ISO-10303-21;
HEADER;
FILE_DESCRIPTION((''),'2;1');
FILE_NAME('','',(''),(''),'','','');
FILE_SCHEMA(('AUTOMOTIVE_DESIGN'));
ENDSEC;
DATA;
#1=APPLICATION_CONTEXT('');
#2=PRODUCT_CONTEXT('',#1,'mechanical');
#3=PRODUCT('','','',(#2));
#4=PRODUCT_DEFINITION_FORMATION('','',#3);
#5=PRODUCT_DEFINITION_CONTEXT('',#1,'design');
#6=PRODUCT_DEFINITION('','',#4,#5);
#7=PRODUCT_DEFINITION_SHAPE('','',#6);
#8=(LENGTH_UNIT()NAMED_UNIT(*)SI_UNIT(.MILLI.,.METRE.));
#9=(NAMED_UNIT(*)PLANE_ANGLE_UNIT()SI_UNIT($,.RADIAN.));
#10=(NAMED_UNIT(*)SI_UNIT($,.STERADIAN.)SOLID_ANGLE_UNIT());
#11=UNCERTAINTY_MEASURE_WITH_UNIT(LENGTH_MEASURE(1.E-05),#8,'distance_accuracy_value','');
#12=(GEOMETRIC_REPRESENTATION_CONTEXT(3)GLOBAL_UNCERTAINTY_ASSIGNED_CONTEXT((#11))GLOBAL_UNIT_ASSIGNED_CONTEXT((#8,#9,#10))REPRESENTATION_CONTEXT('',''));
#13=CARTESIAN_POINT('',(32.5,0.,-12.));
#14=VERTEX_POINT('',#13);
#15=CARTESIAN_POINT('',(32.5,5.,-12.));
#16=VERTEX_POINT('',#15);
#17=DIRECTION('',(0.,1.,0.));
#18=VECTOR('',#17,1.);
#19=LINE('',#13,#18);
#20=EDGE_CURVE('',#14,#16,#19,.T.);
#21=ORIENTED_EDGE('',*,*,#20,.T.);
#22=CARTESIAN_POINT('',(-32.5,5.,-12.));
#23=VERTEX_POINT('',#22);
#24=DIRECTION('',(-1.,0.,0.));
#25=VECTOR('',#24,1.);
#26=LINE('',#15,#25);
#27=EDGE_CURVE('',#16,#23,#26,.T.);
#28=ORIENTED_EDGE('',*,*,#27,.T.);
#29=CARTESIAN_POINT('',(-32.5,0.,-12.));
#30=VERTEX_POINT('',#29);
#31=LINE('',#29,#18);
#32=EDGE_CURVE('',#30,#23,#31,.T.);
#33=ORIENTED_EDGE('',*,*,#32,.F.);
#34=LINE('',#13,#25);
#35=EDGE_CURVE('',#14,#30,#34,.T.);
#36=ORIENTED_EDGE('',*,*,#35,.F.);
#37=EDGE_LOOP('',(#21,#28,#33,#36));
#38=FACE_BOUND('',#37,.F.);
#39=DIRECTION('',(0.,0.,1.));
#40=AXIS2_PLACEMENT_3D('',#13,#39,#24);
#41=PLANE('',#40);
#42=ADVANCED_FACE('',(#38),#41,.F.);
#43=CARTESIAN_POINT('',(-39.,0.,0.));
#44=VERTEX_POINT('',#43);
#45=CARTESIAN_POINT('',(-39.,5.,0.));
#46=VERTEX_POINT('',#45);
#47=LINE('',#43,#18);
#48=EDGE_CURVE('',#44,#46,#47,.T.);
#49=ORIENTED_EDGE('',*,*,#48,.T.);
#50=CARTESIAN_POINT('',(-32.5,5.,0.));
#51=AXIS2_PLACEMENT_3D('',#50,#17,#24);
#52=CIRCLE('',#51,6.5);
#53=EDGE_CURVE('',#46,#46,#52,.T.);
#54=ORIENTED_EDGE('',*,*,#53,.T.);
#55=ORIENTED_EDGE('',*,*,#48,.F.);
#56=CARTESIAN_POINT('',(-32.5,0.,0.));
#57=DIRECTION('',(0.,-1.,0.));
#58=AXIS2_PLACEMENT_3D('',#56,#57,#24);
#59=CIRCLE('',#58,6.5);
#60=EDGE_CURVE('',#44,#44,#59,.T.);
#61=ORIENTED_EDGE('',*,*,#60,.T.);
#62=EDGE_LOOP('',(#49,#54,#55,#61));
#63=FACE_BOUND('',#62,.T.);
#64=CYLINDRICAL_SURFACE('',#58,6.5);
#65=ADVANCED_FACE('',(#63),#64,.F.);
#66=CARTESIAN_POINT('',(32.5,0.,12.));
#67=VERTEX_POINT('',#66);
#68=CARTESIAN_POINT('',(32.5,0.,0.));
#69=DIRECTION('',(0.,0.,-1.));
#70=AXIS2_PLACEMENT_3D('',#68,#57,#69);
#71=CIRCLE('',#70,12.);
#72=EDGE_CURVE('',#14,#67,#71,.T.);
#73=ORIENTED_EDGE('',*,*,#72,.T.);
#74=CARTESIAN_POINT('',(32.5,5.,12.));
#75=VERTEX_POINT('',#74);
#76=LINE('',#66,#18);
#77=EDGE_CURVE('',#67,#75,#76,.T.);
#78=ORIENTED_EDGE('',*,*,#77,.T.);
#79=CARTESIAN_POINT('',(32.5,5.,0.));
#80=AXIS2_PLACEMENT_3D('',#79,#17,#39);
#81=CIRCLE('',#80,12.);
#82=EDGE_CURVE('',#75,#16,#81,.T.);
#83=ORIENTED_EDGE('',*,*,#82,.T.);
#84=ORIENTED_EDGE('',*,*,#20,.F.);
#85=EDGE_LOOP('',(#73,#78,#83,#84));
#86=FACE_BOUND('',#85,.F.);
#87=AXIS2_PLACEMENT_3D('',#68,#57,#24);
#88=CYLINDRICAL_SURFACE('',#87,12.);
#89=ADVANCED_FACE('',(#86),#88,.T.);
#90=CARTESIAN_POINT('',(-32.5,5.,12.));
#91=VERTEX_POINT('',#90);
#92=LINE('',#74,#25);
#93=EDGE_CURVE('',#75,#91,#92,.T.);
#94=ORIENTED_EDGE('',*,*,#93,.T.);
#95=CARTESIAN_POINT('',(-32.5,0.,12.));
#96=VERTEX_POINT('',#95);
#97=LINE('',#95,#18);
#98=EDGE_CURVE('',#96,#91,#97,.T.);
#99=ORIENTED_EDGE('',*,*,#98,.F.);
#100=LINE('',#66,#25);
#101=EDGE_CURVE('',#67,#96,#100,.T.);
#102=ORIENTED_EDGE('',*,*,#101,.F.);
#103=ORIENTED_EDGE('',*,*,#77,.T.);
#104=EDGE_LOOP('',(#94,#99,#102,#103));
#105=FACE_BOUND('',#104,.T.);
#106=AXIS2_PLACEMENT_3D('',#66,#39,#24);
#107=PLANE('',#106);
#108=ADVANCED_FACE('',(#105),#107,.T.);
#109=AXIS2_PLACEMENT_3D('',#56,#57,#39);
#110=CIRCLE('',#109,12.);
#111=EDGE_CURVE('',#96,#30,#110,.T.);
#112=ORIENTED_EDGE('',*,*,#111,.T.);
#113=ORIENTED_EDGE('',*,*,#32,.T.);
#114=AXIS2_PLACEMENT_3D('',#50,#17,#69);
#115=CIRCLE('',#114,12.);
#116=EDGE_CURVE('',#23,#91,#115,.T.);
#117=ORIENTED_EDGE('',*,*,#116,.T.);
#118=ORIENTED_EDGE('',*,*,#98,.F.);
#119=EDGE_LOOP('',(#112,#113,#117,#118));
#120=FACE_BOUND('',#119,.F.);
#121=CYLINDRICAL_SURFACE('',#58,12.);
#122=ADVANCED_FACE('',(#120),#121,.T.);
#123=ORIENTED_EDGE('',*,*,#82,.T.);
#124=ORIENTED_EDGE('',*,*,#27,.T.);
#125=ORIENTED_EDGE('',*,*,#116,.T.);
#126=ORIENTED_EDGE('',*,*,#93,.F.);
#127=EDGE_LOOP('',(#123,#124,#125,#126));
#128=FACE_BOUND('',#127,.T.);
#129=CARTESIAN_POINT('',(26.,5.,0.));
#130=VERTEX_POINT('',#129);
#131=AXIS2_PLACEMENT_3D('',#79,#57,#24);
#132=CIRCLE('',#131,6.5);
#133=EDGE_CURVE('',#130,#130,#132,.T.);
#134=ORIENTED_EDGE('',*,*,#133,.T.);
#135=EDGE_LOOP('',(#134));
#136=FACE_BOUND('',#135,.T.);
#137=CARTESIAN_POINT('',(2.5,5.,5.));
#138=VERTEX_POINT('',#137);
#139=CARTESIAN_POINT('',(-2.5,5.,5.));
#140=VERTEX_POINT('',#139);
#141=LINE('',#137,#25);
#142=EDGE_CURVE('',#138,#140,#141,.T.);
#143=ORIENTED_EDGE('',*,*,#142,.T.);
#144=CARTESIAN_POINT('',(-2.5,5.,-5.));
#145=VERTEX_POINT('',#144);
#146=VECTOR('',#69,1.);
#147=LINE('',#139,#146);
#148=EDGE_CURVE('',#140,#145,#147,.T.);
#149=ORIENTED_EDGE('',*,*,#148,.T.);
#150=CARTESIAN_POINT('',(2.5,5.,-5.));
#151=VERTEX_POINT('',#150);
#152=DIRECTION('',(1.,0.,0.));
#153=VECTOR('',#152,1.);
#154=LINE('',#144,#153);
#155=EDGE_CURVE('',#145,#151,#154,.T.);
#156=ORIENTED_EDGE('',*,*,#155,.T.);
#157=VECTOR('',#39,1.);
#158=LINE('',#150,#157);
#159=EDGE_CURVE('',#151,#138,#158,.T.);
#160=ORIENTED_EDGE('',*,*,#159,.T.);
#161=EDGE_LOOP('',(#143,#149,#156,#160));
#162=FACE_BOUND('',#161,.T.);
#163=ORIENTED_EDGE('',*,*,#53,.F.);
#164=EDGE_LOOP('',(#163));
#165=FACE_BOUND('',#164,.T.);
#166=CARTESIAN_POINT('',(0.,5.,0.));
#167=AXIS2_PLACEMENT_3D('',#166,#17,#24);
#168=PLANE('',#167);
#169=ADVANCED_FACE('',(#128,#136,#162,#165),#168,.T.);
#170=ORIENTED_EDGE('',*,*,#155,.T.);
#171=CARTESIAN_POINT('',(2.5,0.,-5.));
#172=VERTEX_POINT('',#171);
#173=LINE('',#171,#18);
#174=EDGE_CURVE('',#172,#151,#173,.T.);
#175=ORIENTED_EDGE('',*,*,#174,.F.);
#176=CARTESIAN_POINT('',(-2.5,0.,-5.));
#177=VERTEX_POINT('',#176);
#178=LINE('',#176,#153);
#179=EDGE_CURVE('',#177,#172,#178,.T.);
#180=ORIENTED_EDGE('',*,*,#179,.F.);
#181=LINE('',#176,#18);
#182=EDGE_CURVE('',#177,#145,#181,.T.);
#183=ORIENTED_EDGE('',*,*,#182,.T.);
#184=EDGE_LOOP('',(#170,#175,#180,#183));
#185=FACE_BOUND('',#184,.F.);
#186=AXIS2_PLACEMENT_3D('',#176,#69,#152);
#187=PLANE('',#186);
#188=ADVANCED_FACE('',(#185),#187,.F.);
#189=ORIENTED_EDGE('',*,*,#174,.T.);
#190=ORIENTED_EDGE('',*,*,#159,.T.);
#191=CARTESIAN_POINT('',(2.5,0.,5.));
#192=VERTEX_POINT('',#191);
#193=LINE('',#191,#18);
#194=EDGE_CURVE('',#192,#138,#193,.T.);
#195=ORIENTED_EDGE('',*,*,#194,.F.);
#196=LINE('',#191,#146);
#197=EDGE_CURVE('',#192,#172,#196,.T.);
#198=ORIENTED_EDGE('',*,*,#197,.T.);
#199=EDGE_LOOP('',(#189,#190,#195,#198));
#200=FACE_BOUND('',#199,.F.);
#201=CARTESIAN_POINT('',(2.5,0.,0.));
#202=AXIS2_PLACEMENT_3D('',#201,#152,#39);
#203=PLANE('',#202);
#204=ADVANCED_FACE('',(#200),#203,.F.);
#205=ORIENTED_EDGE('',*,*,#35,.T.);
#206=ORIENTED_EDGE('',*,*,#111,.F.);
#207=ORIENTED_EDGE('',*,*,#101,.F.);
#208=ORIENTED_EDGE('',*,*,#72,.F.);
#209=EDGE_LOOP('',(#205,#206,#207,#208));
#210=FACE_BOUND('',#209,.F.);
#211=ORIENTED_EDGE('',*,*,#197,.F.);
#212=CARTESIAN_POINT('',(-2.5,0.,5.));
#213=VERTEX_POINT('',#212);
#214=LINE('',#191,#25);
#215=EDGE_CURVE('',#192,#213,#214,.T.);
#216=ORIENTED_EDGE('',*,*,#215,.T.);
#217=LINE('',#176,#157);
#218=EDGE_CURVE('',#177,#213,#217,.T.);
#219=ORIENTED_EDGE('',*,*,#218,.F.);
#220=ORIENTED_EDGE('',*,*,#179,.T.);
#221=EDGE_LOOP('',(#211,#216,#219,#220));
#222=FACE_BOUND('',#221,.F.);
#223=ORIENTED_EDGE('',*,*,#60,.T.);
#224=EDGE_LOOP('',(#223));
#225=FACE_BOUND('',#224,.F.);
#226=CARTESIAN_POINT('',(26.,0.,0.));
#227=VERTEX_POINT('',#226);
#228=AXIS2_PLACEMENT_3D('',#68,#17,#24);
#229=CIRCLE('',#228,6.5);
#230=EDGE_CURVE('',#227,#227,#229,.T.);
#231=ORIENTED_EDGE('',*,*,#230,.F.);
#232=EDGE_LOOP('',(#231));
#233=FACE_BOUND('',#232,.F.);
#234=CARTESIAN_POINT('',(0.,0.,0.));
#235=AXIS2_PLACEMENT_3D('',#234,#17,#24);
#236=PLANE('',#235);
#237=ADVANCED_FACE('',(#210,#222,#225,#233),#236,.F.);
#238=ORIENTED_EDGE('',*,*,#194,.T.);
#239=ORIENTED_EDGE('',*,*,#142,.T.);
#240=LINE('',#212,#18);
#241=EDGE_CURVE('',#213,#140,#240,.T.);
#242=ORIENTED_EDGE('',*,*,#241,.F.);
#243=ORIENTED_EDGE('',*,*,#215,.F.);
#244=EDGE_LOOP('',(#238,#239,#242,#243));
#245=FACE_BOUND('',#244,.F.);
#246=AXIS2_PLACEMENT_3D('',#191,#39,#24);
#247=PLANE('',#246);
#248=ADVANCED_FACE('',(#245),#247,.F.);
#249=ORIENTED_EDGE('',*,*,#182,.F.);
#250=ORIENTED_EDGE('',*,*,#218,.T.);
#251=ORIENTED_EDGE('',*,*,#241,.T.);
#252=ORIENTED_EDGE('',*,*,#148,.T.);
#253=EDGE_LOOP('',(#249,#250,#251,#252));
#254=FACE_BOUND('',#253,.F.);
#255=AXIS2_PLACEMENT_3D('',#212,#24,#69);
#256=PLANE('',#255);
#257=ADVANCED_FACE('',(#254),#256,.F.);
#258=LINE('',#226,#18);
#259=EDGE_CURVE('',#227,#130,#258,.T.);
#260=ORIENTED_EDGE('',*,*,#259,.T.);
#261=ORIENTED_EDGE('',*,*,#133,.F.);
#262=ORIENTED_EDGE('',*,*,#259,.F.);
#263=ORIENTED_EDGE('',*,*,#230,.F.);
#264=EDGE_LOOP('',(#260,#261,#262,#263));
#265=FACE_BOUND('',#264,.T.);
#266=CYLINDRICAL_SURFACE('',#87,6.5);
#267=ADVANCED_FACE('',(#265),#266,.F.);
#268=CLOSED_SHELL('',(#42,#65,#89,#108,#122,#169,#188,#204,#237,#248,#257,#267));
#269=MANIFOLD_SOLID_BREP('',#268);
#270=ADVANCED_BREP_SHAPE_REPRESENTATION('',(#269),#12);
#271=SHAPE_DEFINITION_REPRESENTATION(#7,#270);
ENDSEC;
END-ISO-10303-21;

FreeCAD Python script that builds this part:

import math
import FreeCAD as App
import Part
import Sketcher

doc = App.newDocument("Part")
params = doc.addObject("Spreadsheet::Sheet", "Params")
for row, (alias, value) in enumerate([
    ("sketch1_diameter", "13 mm"),
    ("sketch1_radius", "12 mm"),
    ("sketch1_width", "65 mm"),
    ("sketch1_width2", "5 mm"),
    ("sketch1_height", "10 mm"),
    ("pad1_length", "5 mm"),
], start=1):
    params.set(f"A{row}", alias)
    params.set(f"B{row}", "=" + value)
    params.setAlias(f"B{row}", alias)

body = doc.addObject("PartDesign::Body", "Body")

# Sketch on XZ plane
sketch1 = doc.addObject("Sketcher::SketchObject", "Sketch")
body.addObject(sketch1)
sketch1.AttachmentSupport = (doc.XZ_Plane, [""])
sketch1.MapMode = "FlatFace"
sketch1.addGeometry(Part.LineSegment(App.Vector(-32, 12, 0), App.Vector(32, 12, 0)), False)
sketch1.addGeometry(Part.ArcOfCircle(Part.Circle(App.Vector(32, 0, 0), App.Vector(0, 0, 1), 12), math.radians(-90), math.radians(90)), False)
sketch1.addGeometry(Part.LineSegment(App.Vector(32, -12, 0), App.Vector(-32, -12, 0)), False)
sketch1.addGeometry(Part.ArcOfCircle(Part.Circle(App.Vector(-32, 0, 0), App.Vector(0, 0, 1), 12), math.radians(90), math.radians(270)), False)
sketch1.addGeometry(Part.Circle(App.Vector(-32, 0, 0), App.Vector(0, 0, 1), 6), False)
sketch1.addGeometry(Part.LineSegment(App.Vector(-2, 5, 0), App.Vector(-2, -5, 0)), False)
sketch1.addGeometry(Part.LineSegment(App.Vector(-2, -5, 0), App.Vector(2, -5, 0)), False)
sketch1.addGeometry(Part.LineSegment(App.Vector(2, -5, 0), App.Vector(2, 5, 0)), False)
sketch1.addGeometry(Part.LineSegment(App.Vector(2, 5, 0), App.Vector(-2, 5, 0)), False)
sketch1.addGeometry(Part.Circle(App.Vector(32, 0, 0), App.Vector(0, 0, 1), 6), False)
sketch1.addConstraint(Sketcher.Constraint("Tangent", 0, 2, 1, 2))
sketch1.addConstraint(Sketcher.Constraint("Tangent", 1, 1, 2, 1))
sketch1.addConstraint(Sketcher.Constraint("Tangent", 2, 2, 3, 2))
sketch1.addConstraint(Sketcher.Constraint("Tangent", 3, 1, 0, 1))
sketch1.addConstraint(Sketcher.Constraint("Coincident", 5, 2, 6, 1))
sketch1.addConstraint(Sketcher.Constraint("Coincident", 6, 2, 7, 1))
sketch1.addConstraint(Sketcher.Constraint("Coincident", 7, 2, 8, 1))
sketch1.addConstraint(Sketcher.Constraint("Coincident", 8, 2, 5, 1))
sketch1.addConstraint(Sketcher.Constraint("Horizontal", 0))
sketch1.addConstraint(Sketcher.Constraint("Horizontal", 2))
sketch1.addConstraint(Sketcher.Constraint("Vertical", 5))
sketch1.addConstraint(Sketcher.Constraint("Horizontal", 6))
sketch1.addConstraint(Sketcher.Constraint("Vertical", 7))
sketch1.addConstraint(Sketcher.Constraint("Horizontal", 8))
sketch1.addConstraint(Sketcher.Constraint("Coincident", 4, 3, 3, 3))
sketch1.addConstraint(Sketcher.Constraint("Coincident", 9, 3, 1, 3))
sketch1.addConstraint(Sketcher.Constraint("Equal", 4, 9))
sketch1.addConstraint(Sketcher.Constraint("Symmetric", 1, 3, 3, 3, -1, 1))
sketch1.addConstraint(Sketcher.Constraint("Symmetric", 5, 2, 7, 2, -1, 1))
sketch1.addConstraint(Sketcher.Constraint("Diameter", 4, 13.0))
sketch1.addConstraint(Sketcher.Constraint("Radius", 1, 12.0))
sketch1.addConstraint(Sketcher.Constraint("DistanceX", 0, 1, 0, 2, 65.0))
sketch1.addConstraint(Sketcher.Constraint("DistanceX", 6, 1, 6, 2, 5.0))
sketch1.addConstraint(Sketcher.Constraint("DistanceY", 5, 2, 5, 1, 10.0))
sketch1.setExpression("Constraints[19]", "Params.sketch1_diameter")
sketch1.setExpression("Constraints[20]", "Params.sketch1_radius")
sketch1.setExpression("Constraints[21]", "Params.sketch1_width")
sketch1.setExpression("Constraints[22]", "Params.sketch1_width2")
sketch1.setExpression("Constraints[23]", "Params.sketch1_height")
pad1 = doc.addObject("PartDesign::Pad", "Pad")
body.addObject(pad1)
pad1.Profile = sketch1
pad1.setExpression("Length", "Params.pad1_length")
pad1.Reversed = True

doc.recompute()
